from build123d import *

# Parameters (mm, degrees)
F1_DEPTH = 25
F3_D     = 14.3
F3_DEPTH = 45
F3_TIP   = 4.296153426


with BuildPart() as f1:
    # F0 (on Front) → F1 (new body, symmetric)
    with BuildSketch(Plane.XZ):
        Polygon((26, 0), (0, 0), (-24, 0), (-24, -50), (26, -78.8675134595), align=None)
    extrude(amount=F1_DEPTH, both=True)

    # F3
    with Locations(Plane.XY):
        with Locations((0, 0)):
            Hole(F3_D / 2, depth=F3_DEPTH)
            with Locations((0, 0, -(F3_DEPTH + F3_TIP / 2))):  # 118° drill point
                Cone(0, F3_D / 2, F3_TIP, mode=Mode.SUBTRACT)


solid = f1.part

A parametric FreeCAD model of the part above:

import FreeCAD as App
import Part
import Sketcher

V = App.Vector
Q = App.Units.Quantity

doc = App.newDocument("Part")
body = doc.addObject("PartDesign::Body", "Body")

# Sketch on XZ plane
sketch1 = doc.addObject("Sketcher::SketchObject", "Sketch")
body.addObject(sketch1)
sketch1.AttachmentSupport = (doc.XZ_Plane, [""])
sketch1.MapMode = "FlatFace"
sketch1.addGeometry([
    Part.LineSegment(V(26, 0, 0), V(-24, 0, 0)),
    Part.LineSegment(V(-24, 0, 0), V(-24, -50, 0)),
    Part.LineSegment(V(-24, -50, 0), V(26, -79, 0)),
    Part.LineSegment(V(26, -79, 0), V(26, 0, 0)),
], False)
sketch1.addConstraint([
    Sketcher.Constraint("Coincident", 0, 2, 1, 1),
    Sketcher.Constraint("Coincident", 1, 2, 2, 1),
    Sketcher.Constraint("Coincident", 2, 2, 3, 1),
    Sketcher.Constraint("Coincident", 3, 2, 0, 1),
    Sketcher.Constraint("Horizontal", 0),
    Sketcher.Constraint("Vertical", 1),
    Sketcher.Constraint("Vertical", 3),
    Sketcher.Constraint("PointOnObject", 0, 2, -1),
    Sketcher.Constraint("Equal", 0, 1),
    Sketcher.Constraint("DistanceX", 0, 2, 0, 1, Q("50 mm")),
    Sketcher.Constraint("Angle", 2, Q("-30 deg")),
    Sketcher.Constraint("DistanceX", 0, 2, -1, 1, Q("24 mm")),
])
pad1 = doc.addObject("PartDesign::Pad", "Pad")
body.addObject(pad1)
pad1.Profile = sketch1
pad1.Length = 50
pad1.Midplane = True

# Sketch on XY plane
sketch2 = doc.addObject("Sketcher::SketchObject", "Sketch001")
body.addObject(sketch2)
sketch2.AttachmentSupport = (doc.XY_Plane, [""])
sketch2.MapMode = "FlatFace"
sketch2.addGeometry(Part.Circle(V(0, 0, 0), V(0, 0, 1), 7), False)
sketch2.addConstraint([
    Sketcher.Constraint("Coincident", 0, 3, -1, 1),
    Sketcher.Constraint("Diameter", 0, Q("14.3 mm")),
])
doc.recompute()
hole = doc.addObject("PartDesign::Hole", "Hole")
body.addObject(hole)
hole.Profile = sketch2
hole.ThreadType = "None"
hole.Diameter = 14.3
hole.DepthType = "Dimension"
hole.Depth = 45
hole.DrillPoint = "Angled"
hole.DrillPointAngle = 118

doc.recompute()
